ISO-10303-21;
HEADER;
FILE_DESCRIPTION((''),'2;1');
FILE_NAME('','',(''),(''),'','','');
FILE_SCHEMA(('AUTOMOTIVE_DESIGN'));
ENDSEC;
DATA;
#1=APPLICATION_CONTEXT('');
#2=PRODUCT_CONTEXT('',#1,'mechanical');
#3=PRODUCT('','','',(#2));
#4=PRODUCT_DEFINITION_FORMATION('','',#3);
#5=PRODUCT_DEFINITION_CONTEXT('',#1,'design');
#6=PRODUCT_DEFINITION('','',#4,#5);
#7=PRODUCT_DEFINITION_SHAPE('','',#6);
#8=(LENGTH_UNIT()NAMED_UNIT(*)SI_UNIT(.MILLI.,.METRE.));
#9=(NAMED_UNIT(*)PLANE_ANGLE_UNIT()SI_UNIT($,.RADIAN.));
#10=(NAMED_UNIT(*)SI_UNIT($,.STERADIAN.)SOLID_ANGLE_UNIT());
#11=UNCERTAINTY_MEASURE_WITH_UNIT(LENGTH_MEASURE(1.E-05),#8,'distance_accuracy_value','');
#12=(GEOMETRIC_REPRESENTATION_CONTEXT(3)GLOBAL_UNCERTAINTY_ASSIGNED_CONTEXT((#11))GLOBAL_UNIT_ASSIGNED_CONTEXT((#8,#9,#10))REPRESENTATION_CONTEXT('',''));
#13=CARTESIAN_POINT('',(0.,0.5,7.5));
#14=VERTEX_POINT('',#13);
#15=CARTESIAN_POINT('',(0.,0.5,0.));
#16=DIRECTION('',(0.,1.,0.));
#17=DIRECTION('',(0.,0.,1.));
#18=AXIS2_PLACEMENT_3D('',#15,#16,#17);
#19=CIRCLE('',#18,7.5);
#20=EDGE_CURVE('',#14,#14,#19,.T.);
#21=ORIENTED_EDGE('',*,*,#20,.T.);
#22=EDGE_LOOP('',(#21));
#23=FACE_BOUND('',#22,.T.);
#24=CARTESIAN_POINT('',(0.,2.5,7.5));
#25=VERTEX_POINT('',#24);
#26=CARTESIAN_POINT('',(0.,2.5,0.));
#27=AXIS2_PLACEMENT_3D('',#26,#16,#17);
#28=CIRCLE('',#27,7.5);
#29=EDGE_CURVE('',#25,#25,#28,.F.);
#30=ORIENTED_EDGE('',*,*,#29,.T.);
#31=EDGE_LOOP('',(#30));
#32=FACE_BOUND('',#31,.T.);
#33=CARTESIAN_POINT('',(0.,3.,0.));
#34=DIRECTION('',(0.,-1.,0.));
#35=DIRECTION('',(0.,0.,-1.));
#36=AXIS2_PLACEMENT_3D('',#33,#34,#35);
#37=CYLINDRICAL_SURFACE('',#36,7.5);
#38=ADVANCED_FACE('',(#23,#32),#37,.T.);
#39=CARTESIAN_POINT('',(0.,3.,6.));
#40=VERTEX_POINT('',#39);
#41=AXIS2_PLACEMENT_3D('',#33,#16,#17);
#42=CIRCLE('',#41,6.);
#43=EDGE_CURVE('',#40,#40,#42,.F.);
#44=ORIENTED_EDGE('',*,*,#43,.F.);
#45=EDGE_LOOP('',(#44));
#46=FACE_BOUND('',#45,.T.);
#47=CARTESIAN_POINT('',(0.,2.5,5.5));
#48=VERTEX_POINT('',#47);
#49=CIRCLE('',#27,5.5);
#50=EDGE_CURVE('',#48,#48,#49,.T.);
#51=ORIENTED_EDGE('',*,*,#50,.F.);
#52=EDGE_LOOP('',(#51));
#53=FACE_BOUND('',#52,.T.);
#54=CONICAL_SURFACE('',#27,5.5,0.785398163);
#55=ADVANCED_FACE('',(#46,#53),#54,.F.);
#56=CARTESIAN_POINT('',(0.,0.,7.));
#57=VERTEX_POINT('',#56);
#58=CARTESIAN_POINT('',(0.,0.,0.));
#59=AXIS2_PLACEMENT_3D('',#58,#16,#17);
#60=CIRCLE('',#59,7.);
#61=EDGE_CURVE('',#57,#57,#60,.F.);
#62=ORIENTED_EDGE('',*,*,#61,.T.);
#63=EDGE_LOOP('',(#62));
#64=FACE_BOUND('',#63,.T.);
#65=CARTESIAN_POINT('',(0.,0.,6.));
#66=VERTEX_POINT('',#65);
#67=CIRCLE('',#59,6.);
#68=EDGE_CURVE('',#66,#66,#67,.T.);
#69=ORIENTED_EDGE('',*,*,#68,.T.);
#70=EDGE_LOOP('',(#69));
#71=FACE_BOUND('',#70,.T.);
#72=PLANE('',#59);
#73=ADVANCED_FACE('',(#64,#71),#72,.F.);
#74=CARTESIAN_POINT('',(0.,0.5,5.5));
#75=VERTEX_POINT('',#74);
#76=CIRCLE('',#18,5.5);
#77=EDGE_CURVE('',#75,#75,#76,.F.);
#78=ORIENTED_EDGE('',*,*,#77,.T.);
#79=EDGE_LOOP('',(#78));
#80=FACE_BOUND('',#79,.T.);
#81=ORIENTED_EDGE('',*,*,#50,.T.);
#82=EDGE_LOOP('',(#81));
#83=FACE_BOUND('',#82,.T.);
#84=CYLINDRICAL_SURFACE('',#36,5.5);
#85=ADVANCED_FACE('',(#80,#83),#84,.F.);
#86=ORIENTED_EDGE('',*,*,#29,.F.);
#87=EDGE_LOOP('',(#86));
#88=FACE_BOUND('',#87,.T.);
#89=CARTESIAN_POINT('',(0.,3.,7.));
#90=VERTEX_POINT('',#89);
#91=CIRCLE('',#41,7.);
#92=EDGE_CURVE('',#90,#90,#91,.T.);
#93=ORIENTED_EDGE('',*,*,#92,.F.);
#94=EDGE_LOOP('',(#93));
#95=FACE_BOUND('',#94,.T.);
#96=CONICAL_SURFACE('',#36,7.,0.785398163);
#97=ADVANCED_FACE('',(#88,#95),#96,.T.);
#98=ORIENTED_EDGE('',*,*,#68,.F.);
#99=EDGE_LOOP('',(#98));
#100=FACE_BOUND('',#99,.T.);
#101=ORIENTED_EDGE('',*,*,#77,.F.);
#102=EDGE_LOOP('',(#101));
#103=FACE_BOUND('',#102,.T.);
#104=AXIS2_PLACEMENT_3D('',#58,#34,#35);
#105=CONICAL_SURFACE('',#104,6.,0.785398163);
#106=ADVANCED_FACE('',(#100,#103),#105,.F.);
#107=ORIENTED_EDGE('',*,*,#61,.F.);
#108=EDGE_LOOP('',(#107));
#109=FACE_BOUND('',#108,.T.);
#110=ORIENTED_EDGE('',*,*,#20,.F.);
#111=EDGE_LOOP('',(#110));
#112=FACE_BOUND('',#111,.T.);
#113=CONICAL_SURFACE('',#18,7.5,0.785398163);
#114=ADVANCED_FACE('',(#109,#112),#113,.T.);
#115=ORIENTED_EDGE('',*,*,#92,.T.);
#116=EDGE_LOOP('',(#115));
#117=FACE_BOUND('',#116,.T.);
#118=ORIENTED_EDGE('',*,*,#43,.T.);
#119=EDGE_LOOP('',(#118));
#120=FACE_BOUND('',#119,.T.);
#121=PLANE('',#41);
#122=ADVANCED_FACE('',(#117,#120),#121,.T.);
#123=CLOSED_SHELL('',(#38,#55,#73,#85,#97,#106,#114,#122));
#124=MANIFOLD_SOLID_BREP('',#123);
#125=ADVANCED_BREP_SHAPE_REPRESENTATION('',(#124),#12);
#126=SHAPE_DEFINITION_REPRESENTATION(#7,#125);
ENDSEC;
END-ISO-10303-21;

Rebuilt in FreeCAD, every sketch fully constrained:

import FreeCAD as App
import Part
import Sketcher
from FreeCAD import Vector
Q = App.Units.Quantity


def edges_at(feature, points):
    """Names of the edges that pass closest to the given points."""
    edges = feature.Shape.Edges
    near = lambda p: min(range(len(edges)), key=lambda i: edges[i].distToShape(Part.Vertex(*p))[0])
    return sorted({f"Edge{near(p) + 1}" for p in points})

doc = App.newDocument("Part")
params = doc.addObject("Spreadsheet::Sheet", "Params")
for row, (alias, value) in enumerate([
    ("sketch1_diameter", "15 mm"),
    ("sketch1_diameter2", "11 mm"),
    ("pad1_length", "3 mm"),
    ("chamfer_size", "0.5 mm"),
], start=1):
    params.set(f"A{row}", alias)
    params.set(f"B{row}", "=" + value)
    params.setAlias(f"B{row}", alias)

body = doc.addObject("PartDesign::Body", "Body")

sketch1 = doc.addObject("Sketcher::SketchObject", "Sketch")
body.addObject(sketch1)
sketch1.AttachmentSupport = (doc.XZ_Plane, [""])
sketch1.MapMode = "FlatFace"
sketch1.addGeometry(Part.Circle(Vector(0, 0, 0), Vector(0, 0, 1), 8), False)
sketch1.addGeometry(Part.Circle(Vector(0, 0, 0), Vector(0, 0, 1), 6), False)
sketch1.addConstraint(Sketcher.Constraint("Coincident", 0, 3, -1, 1))
sketch1.addConstraint(Sketcher.Constraint("Coincident", 1, 3, -1, 1))
sketch1.addConstraint(Sketcher.Constraint("Diameter", 0, Q("15 mm")))
sketch1.addConstraint(Sketcher.Constraint("Diameter", 1, Q("11 mm")))
sketch1.setExpression("Constraints[2]", "Params.sketch1_diameter")
sketch1.setExpression("Constraints[3]", "Params.sketch1_diameter2")
pad1 = doc.addObject("PartDesign::Pad", "Pad")
body.addObject(pad1)
pad1.Profile = sketch1
pad1.setExpression("Length", "Params.pad1_length")
pad1.Reversed = True
doc.recompute()

chamfer = doc.addObject("PartDesign::Chamfer", "Chamfer")
body.addObject(chamfer)
chamfer.Base = (pad1, edges_at(pad1, [
    (-7.5, 0, 0),
    (-7.5, 3, 0),
    (-5.5, 0, 0),
    (-5.5, 3, 0),
]))
chamfer.setExpression("Size", "Params.chamfer_size")

doc.recompute()
